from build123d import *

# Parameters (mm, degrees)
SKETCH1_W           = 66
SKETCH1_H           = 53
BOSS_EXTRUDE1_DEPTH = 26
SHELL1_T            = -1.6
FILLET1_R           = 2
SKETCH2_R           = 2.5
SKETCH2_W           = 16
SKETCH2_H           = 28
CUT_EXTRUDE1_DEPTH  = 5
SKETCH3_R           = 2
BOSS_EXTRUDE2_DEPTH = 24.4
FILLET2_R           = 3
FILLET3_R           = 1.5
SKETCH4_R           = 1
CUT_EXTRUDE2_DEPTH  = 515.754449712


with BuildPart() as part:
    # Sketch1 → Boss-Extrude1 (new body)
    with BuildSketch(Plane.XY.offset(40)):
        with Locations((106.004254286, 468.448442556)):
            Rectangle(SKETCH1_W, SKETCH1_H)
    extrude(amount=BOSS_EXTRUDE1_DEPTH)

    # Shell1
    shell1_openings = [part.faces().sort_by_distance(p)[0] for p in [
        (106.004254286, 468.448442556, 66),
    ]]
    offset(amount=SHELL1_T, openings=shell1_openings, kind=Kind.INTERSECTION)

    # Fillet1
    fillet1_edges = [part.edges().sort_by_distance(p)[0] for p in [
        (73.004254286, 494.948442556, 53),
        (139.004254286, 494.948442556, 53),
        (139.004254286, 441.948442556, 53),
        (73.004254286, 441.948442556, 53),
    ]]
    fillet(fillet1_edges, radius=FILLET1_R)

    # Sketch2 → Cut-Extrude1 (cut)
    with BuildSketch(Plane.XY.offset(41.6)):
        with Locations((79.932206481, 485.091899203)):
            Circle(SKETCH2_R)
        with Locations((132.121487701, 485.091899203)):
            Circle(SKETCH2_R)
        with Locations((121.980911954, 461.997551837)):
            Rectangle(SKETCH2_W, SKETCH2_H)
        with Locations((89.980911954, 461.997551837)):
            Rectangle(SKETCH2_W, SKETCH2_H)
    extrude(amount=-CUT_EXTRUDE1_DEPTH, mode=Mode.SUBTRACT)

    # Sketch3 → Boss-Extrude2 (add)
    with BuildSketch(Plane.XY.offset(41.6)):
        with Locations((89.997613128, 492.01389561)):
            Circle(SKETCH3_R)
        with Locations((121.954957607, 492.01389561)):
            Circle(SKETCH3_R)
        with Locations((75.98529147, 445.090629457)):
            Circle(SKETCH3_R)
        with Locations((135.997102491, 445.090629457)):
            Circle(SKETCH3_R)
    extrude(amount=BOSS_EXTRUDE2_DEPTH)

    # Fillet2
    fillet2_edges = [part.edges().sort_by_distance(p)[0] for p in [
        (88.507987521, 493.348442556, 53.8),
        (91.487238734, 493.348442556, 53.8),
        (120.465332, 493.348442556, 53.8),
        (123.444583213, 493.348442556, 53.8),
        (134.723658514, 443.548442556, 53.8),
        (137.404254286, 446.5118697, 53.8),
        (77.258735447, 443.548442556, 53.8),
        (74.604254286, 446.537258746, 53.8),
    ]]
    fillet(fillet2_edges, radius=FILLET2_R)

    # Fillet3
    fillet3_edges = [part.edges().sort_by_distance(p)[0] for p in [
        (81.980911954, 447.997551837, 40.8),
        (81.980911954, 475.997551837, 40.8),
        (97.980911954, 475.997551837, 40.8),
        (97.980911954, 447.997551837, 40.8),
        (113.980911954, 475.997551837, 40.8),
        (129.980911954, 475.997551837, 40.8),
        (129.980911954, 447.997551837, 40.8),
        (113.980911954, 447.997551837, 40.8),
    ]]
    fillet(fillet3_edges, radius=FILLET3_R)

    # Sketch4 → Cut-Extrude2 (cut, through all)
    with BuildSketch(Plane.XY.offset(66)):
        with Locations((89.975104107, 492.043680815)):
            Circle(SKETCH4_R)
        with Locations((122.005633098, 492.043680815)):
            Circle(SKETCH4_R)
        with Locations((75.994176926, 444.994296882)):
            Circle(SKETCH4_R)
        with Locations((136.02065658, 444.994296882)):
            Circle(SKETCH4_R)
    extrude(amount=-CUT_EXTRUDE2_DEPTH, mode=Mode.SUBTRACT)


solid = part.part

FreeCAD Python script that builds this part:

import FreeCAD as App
import Part
import Sketcher
from FreeCAD import Vector
Q = App.Units.Quantity


def edges_at(feature, points):
    """Names of the edges that pass closest to the given points."""
    edges = feature.Shape.Edges
    near = lambda p: min(range(len(edges)), key=lambda i: edges[i].distToShape(Part.Vertex(*p))[0])
    return sorted({f"Edge{near(p) + 1}" for p in points})


def faces_at(feature, points):
    """Names of the faces that lie closest to the given points."""
    faces = feature.Shape.Faces
    near = lambda p: min(range(len(faces)), key=lambda i: faces[i].distToShape(Part.Vertex(*p))[0])
    return sorted({f"Face{near(p) + 1}" for p in points})

doc = App.newDocument("Part")
params = doc.addObject("Spreadsheet::Sheet", "Params")
for row, (alias, value) in enumerate([
    ("sketch1_width", "66 mm"),
    ("sketch1_height", "53 mm"),
    ("pad1_length", "26 mm"),
    ("thickness_wall", "1.6 mm"),
    ("fillet_radius", "2 mm"),
    ("sketch2_diameter", "5 mm"),
    ("sketch2_width", "16 mm"),
    ("sketch2_height", "28 mm"),
    ("pocket1_length", "5 mm"),
    ("sketch3_diameter", "4 mm"),
    ("pad2_length", "24.4 mm"),
    ("fillet2_radius", "3 mm"),
    ("fillet3_radius", "1.5 mm"),
    ("sketch4_diameter", "2 mm"),
], start=1):
    params.set(f"A{row}", alias)
    params.set(f"B{row}", "=" + value)
    params.setAlias(f"B{row}", alias)

body = doc.addObject("PartDesign::Body", "Body")

sketch1 = doc.addObject("Sketcher::SketchObject", "Sketch")
body.addObject(sketch1)
sketch1.AttachmentSupport = (doc.XY_Plane, [""])
sketch1.MapMode = "FlatFace"
sketch1.AttachmentOffset = App.Placement(Vector(0, 0, 40), App.Rotation())
sketch1.addGeometry(Part.LineSegment(Vector(73, 495, 0), Vector(73, 442, 0)), False)
sketch1.addGeometry(Part.LineSegment(Vector(73, 442, 0), Vector(139, 442, 0)), False)
sketch1.addGeometry(Part.LineSegment(Vector(139, 442, 0), Vector(139, 495, 0)), False)
sketch1.addGeometry(Part.LineSegment(Vector(139, 495, 0), Vector(73, 495, 0)), False)
sketch1.addConstraint(Sketcher.Constraint("Coincident", 0, 2, 1, 1))
sketch1.addConstraint(Sketcher.Constraint("Coincident", 1, 2, 2, 1))
sketch1.addConstraint(Sketcher.Constraint("Coincident", 2, 2, 3, 1))
sketch1.addConstraint(Sketcher.Constraint("Coincident", 3, 2, 0, 1))
sketch1.addConstraint(Sketcher.Constraint("Vertical", 0))
sketch1.addConstraint(Sketcher.Constraint("Horizontal", 1))
sketch1.addConstraint(Sketcher.Constraint("Vertical", 2))
sketch1.addConstraint(Sketcher.Constraint("Horizontal", 3))
sketch1.addConstraint(Sketcher.Constraint("DistanceX", 1, 1, 1, 2, Q("66 mm")))
sketch1.addConstraint(Sketcher.Constraint("DistanceY", 0, 2, 0, 1, Q("53 mm")))
sketch1.addConstraint(Sketcher.Constraint("DistanceX", -1, 1, 0, 2, Q("73.004254 mm")))
sketch1.addConstraint(Sketcher.Constraint("DistanceY", -1, 1, 0, 2, Q("441.948443 mm")))
sketch1.setExpression("Constraints[8]", "Params.sketch1_width")
sketch1.setExpression("Constraints[9]", "Params.sketch1_height")
pad1 = doc.addObject("PartDesign::Pad", "Pad")
body.addObject(pad1)
pad1.Profile = sketch1
pad1.setExpression("Length", "Params.pad1_length")
doc.recompute()

thickness = doc.addObject("PartDesign::Thickness", "Thickness")
body.addObject(thickness)
thickness.Base = (pad1, faces_at(pad1, [(106.004, 468.448, 66)]))
thickness.setExpression("Value", "Params.thickness_wall")
thickness.Reversed = True
thickness.Join = "Intersection"
doc.recompute()

fillet = doc.addObject("PartDesign::Fillet", "Fillet")
body.addObject(fillet)
fillet.Base = (thickness, edges_at(thickness, [
    (73.004, 494.948, 53),
    (139.004, 494.948, 53),
    (139.004, 441.948, 53),
    (73.004, 441.948, 53),
]))
fillet.setExpression("Radius", "Params.fillet_radius")

sketch2 = doc.addObject("Sketcher::SketchObject", "Sketch001")
body.addObject(sketch2)
sketch2.AttachmentSupport = (doc.XY_Plane, [""])
sketch2.MapMode = "FlatFace"
sketch2.AttachmentOffset = App.Placement(Vector(0, 0, 41.6), App.Rotation())
sketch2.addGeometry(Part.Circle(Vector(79.9, 485.1, 0), Vector(0, 0, 1), 2.5), False)
sketch2.addGeometry(Part.Circle(Vector(132.1, 485.1, 0), Vector(0, 0, 1), 2.5), False)
sketch2.addGeometry(Part.LineSegment(Vector(114, 476, 0), Vector(114, 448, 0)), False)
sketch2.addGeometry(Part.LineSegment(Vector(114, 448, 0), Vector(130, 448, 0)), False)
sketch2.addGeometry(Part.LineSegment(Vector(130, 448, 0), Vector(130, 476, 0)), False)
sketch2.addGeometry(Part.LineSegment(Vector(130, 476, 0), Vector(114, 476, 0)), False)
sketch2.addGeometry(Part.LineSegment(Vector(82, 476, 0), Vector(82, 448, 0)), False)
sketch2.addGeometry(Part.LineSegment(Vector(82, 448, 0), Vector(98, 448, 0)), False)
sketch2.addGeometry(Part.LineSegment(Vector(98, 448, 0), Vector(98, 476, 0)), False)
sketch2.addGeometry(Part.LineSegment(Vector(98, 476, 0), Vector(82, 476, 0)), False)
sketch2.addConstraint(Sketcher.Constraint("Coincident", 2, 2, 3, 1))
sketch2.addConstraint(Sketcher.Constraint("Coincident", 3, 2, 4, 1))
sketch2.addConstraint(Sketcher.Constraint("Coincident", 4, 2, 5, 1))
sketch2.addConstraint(Sketcher.Constraint("Coincident", 5, 2, 2, 1))
sketch2.addConstraint(Sketcher.Constraint("Coincident", 6, 2, 7, 1))
sketch2.addConstraint(Sketcher.Constraint("Coincident", 7, 2, 8, 1))
sketch2.addConstraint(Sketcher.Constraint("Coincident", 8, 2, 9, 1))
sketch2.addConstraint(Sketcher.Constraint("Coincident", 9, 2, 6, 1))
sketch2.addConstraint(Sketcher.Constraint("Vertical", 2))
sketch2.addConstraint(Sketcher.Constraint("Horizontal", 3))
sketch2.addConstraint(Sketcher.Constraint("Vertical", 4))
sketch2.addConstraint(Sketcher.Constraint("Horizontal", 5))
sketch2.addConstraint(Sketcher.Constraint("Vertical", 6))
sketch2.addConstraint(Sketcher.Constraint("Horizontal", 7))
sketch2.addConstraint(Sketcher.Constraint("Vertical", 8))
sketch2.addConstraint(Sketcher.Constraint("Horizontal", 9))
sketch2.addConstraint(Sketcher.Constraint("Equal", 0, 1))
sketch2.addConstraint(Sketcher.Constraint("Horizontal", 0, 3, 1, 3))
sketch2.addConstraint(Sketcher.Constraint("Horizontal", 3, 2, 6, 2))
sketch2.addConstraint(Sketcher.Constraint("Horizontal", 5, 2, 8, 2))
sketch2.addConstraint(Sketcher.Constraint("Equal", 5, 7))
sketch2.addConstraint(Sketcher.Constraint("Diameter", 0, Q("5 mm")))
sketch2.addConstraint(Sketcher.Constraint("DistanceX", 3, 1, 3, 2, Q("16 mm")))
sketch2.addConstraint(Sketcher.Constraint("DistanceY", 2, 2, 2, 1, Q("28 mm")))
sketch2.addConstraint(Sketcher.Constraint("DistanceX", 6, 2, 2, 2, Q("32 mm")))
sketch2.addConstraint(Sketcher.Constraint("DistanceY", -1, 1, 0, 3, Q("485.091899 mm")))
sketch2.addConstraint(Sketcher.Constraint("DistanceX", -1, 1, 2, 2, Q("113.980912 mm")))
sketch2.addConstraint(Sketcher.Constraint("DistanceY", -1, 1, 2, 2, Q("447.997552 mm")))
sketch2.addConstraint(Sketcher.Constraint("DistanceX", 0, 3, 1, 3, Q("52.189281 mm")))
sketch2.addConstraint(Sketcher.Constraint("DistanceX", -1, 1, 0, 3, Q("79.932206 mm")))
sketch2.setExpression("Constraints[21]", "Params.sketch2_diameter")
sketch2.setExpression("Constraints[22]", "Params.sketch2_width")
sketch2.setExpression("Constraints[23]", "Params.sketch2_height")
pocket1 = doc.addObject("PartDesign::Pocket", "Pocket")
body.addObject(pocket1)
pocket1.Profile = sketch2
pocket1.setExpression("Length", "Params.pocket1_length")

sketch3 = doc.addObject("Sketcher::SketchObject", "Sketch002")
body.addObject(sketch3)
sketch3.AttachmentSupport = (doc.XY_Plane, [""])
sketch3.MapMode = "FlatFace"
sketch3.AttachmentOffset = App.Placement(Vector(0, 0, 41.6), App.Rotation())
sketch3.addGeometry(Part.Circle(Vector(90, 492, 0), Vector(0, 0, 1), 2), False)
sketch3.addGeometry(Part.Circle(Vector(122, 492, 0), Vector(0, 0, 1), 2), False)
sketch3.addGeometry(Part.Circle(Vector(76, 445.1, 0), Vector(0, 0, 1), 2), False)
sketch3.addGeometry(Part.Circle(Vector(136, 445.1, 0), Vector(0, 0, 1), 2), False)
sketch3.addConstraint(Sketcher.Constraint("Equal", 0, 1))
sketch3.addConstraint(Sketcher.Constraint("Equal", 1, 2))
sketch3.addConstraint(Sketcher.Constraint("Equal", 2, 3))
sketch3.addConstraint(Sketcher.Constraint("Horizontal", 0, 3, 1, 3))
sketch3.addConstraint(Sketcher.Constraint("Horizontal", 2, 3, 3, 3))
sketch3.addConstraint(Sketcher.Constraint("Diameter", 0, Q("4 mm")))
sketch3.addConstraint(Sketcher.Constraint("DistanceX", -1, 1, 2, 3, Q("75.985291 mm")))
sketch3.addConstraint(Sketcher.Constraint("DistanceY", -1, 1, 2, 3, Q("445.090629 mm")))
sketch3.addConstraint(Sketcher.Constraint("DistanceX", 2, 3, 0, 3, Q("14.012322 mm")))
sketch3.addConstraint(Sketcher.Constraint("DistanceX", 2, 3, 3, 3, Q("60.011811 mm")))
sketch3.addConstraint(Sketcher.Constraint("DistanceY", -1, 1, 0, 3, Q("492.013896 mm")))
sketch3.addConstraint(Sketcher.Constraint("DistanceX", -1, 1, 1, 3, Q("121.954958 mm")))
sketch3.setExpression("Constraints[5]", "Params.sketch3_diameter")
pad2 = doc.addObject("PartDesign::Pad", "Pad001")
body.addObject(pad2)
pad2.Profile = sketch3
pad2.setExpression("Length", "Params.pad2_length")
doc.recompute()

fillet2 = doc.addObject("PartDesign::Fillet", "Fillet001")
body.addObject(fillet2)
fillet2.Base = (pad2, edges_at(pad2, [
    (88.508, 493.348, 53.8),
    (91.487, 493.348, 53.8),
    (120.465, 493.348, 53.8),
    (123.445, 493.348, 53.8),
    (134.724, 443.548, 53.8),
    (137.404, 446.512, 53.8),
    (77.259, 443.548, 53.8),
    (74.604, 446.537, 53.8),
]))
fillet2.setExpression("Radius", "Params.fillet2_radius")
doc.recompute()

fillet3 = doc.addObject("PartDesign::Fillet", "Fillet002")
body.addObject(fillet3)
fillet3.Base = (fillet2, edges_at(fillet2, [
    (81.981, 447.998, 40.8),
    (81.981, 475.998, 40.8),
    (97.981, 475.998, 40.8),
    (97.981, 447.998, 40.8),
    (113.981, 475.998, 40.8),
    (129.981, 475.998, 40.8),
    (129.981, 447.998, 40.8),
    (113.981, 447.998, 40.8),
]))
fillet3.setExpression("Radius", "Params.fillet3_radius")

sketch4 = doc.addObject("Sketcher::SketchObject", "Sketch003")
body.addObject(sketch4)
sketch4.AttachmentSupport = (doc.XY_Plane, [""])
sketch4.MapMode = "FlatFace"
sketch4.AttachmentOffset = App.Placement(Vector(0, 0, 66), App.Rotation())
sketch4.addGeometry(Part.Circle(Vector(90, 492, 0), Vector(0, 0, 1), 1), False)
sketch4.addGeometry(Part.Circle(Vector(122, 492, 0), Vector(0, 0, 1), 1), False)
sketch4.addGeometry(Part.Circle(Vector(76, 445, 0), Vector(0, 0, 1), 1), False)
sketch4.addGeometry(Part.Circle(Vector(136, 445, 0), Vector(0, 0, 1), 1), False)
sketch4.addConstraint(Sketcher.Constraint("Equal", 0, 1))
sketch4.addConstraint(Sketcher.Constraint("Equal", 1, 2))
sketch4.addConstraint(Sketcher.Constraint("Equal", 2, 3))
sketch4.addConstraint(Sketcher.Constraint("Horizontal", 0, 3, 1, 3))
sketch4.addConstraint(Sketcher.Constraint("Horizontal", 2, 3, 3, 3))
sketch4.addConstraint(Sketcher.Constraint("Diameter", 0, Q("2 mm")))
sketch4.addConstraint(Sketcher.Constraint("DistanceY", -1, 1, 0, 3, Q("492.043681 mm")))
sketch4.addConstraint(Sketcher.Constraint("DistanceX", 0, 3, 1, 3, Q("32.030529 mm")))
sketch4.addConstraint(Sketcher.Constraint("DistanceX", 2, 3, 3, 3, Q("60.02648 mm")))
sketch4.addConstraint(Sketcher.Constraint("DistanceX", -1, 1, 0, 3, Q("89.975104 mm")))
sketch4.addConstraint(Sketcher.Constraint("DistanceX", -1, 1, 2, 3, Q("75.994177 mm")))
sketch4.addConstraint(Sketcher.Constraint("DistanceY", -1, 1, 2, 3, Q("444.994297 mm")))
sketch4.setExpression("Constraints[5]", "Params.sketch4_diameter")
pocket2 = doc.addObject("PartDesign::Pocket", "Pocket001")
body.addObject(pocket2)
pocket2.Profile = sketch4
pocket2.Type = "ThroughAll"

doc.recompute()
